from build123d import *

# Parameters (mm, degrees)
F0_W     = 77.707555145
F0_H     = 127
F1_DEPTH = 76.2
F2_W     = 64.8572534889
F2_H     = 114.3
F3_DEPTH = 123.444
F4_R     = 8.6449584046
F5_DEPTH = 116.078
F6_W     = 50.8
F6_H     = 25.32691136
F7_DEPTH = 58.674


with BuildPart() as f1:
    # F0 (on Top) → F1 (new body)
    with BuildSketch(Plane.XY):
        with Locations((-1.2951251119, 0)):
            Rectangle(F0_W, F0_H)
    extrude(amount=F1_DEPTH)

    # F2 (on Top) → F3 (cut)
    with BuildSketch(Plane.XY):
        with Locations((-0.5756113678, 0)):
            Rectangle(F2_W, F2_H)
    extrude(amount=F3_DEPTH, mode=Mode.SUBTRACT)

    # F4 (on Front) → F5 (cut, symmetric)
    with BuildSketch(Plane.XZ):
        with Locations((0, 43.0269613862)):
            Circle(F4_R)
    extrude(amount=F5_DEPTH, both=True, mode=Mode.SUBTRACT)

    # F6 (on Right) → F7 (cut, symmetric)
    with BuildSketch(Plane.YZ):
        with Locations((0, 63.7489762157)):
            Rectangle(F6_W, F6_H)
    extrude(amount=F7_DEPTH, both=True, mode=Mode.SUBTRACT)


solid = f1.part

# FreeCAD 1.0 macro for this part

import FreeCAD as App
import Part
import Sketcher

V = App.Vector
Q = App.Units.Quantity


def add_polygon(sketch, points):
    """Adds a closed chain of lines whose ends are joined by coincident constraints."""
    first, n = sketch.GeometryCount, len(points)
    for a, b in zip(points, points[1:] + points[:1]):
        sketch.addGeometry(Part.LineSegment(App.Vector(*a, 0), App.Vector(*b, 0)), False)
    for i in range(n):
        sketch.addConstraint(Sketcher.Constraint("Coincident", first + i, 2, first + (i + 1) % n, 1))

doc = App.newDocument("Part")
body = doc.addObject("PartDesign::Body", "Body")

# Sketch on XY plane
sketch1 = body.newObject("Sketcher::SketchObject", "Sketch")
sketch1.AttachmentSupport = (doc.getObject("XY_Plane"), [""])
sketch1.MapMode = "FlatFace"
add_polygon(sketch1, [(-40.148903, 63.5), (-40.148903, -63.5), (37.558652, -63.5), (37.558652, 63.5)])  # lines 0-3
sketch1.addConstraint(Sketcher.Constraint("Vertical", 0))
sketch1.addConstraint(Sketcher.Constraint("Horizontal", 1))
sketch1.addConstraint(Sketcher.Constraint("Vertical", 2))
sketch1.addConstraint(Sketcher.Constraint("Horizontal", 3))
sketch1.addConstraint(Sketcher.Constraint("DistanceY", 0, 2, 0, 1, Q("5 in")))
sketch1.addConstraint(Sketcher.Constraint("DistanceY", 0, 2, -1, 1, Q("2.5 in")))
sketch1.addConstraint(Sketcher.Constraint("DistanceX", 1, 1, 1, 2, Q("77.707555 mm")))
sketch1.addConstraint(Sketcher.Constraint("DistanceX", 0, 2, -1, 1, Q("40.148903 mm")))
pad1 = body.newObject("PartDesign::Pad", "Pad")
pad1.Profile = sketch1
pad1.Length = Q("3 in")

# Sketch on XY plane
sketch2 = body.newObject("Sketcher::SketchObject", "Sketch001")
sketch2.AttachmentSupport = (doc.getObject("XY_Plane"), [""])
sketch2.MapMode = "FlatFace"
add_polygon(sketch2, [(-33.004238, 57.15), (-33.004238, -57.15), (31.853015, -57.15), (31.853015, 57.15)])  # lines 0-3
sketch2.addConstraint(Sketcher.Constraint("Vertical", 0))
sketch2.addConstraint(Sketcher.Constraint("Horizontal", 1))
sketch2.addConstraint(Sketcher.Constraint("Vertical", 2))
sketch2.addConstraint(Sketcher.Constraint("Horizontal", 3))
sketch2.addConstraint(Sketcher.Constraint("DistanceY", 0, 2, 0, 1, Q("4.5 in")))
sketch2.addConstraint(Sketcher.Constraint("DistanceY", 0, 2, -1, 1, Q("2.25 in")))
sketch2.addConstraint(Sketcher.Constraint("DistanceX", 1, 1, 1, 2, Q("64.857253 mm")))
sketch2.addConstraint(Sketcher.Constraint("DistanceX", 0, 2, -1, 1, Q("33.004238 mm")))
pocket1 = body.newObject("PartDesign::Pocket", "Pocket")
pocket1.Profile = sketch2
pocket1.Length = Q("4.86 in")
pocket1.Reversed = True

# Sketch on XZ plane
sketch3 = body.newObject("Sketcher::SketchObject", "Sketch002")
sketch3.AttachmentSupport = (doc.getObject("XZ_Plane"), [""])
sketch3.MapMode = "FlatFace"
sketch3.addGeometry(Part.Circle(V(0, 43.026961, 0), V(0, 0, 1), 8.644958), False)
sketch3.addConstraint(Sketcher.Constraint("PointOnObject", 0, 3, -2))
sketch3.addConstraint(Sketcher.Constraint("Diameter", 0, Q("17.289917 mm")))
sketch3.addConstraint(Sketcher.Constraint("DistanceY", -1, 1, 0, 3, Q("43.026961 mm")))
pocket2 = body.newObject("PartDesign::Pocket", "Pocket001")
pocket2.Profile = sketch3
pocket2.Length = Q("9.14 in")
pocket2.Midplane = True

# Sketch on YZ plane
sketch4 = body.newObject("Sketcher::SketchObject", "Sketch003")
sketch4.AttachmentSupport = (doc.getObject("YZ_Plane"), [""])
sketch4.MapMode = "FlatFace"
add_polygon(sketch4, [(-25.4, 76.412432), (-25.4, 51.085521), (25.4, 51.085521), (25.4, 76.412432)])  # lines 0-3
sketch4.addConstraint(Sketcher.Constraint("Vertical", 0))
sketch4.addConstraint(Sketcher.Constraint("Horizontal", 1))
sketch4.addConstraint(Sketcher.Constraint("Vertical", 2))
sketch4.addConstraint(Sketcher.Constraint("Horizontal", 3))
sketch4.addConstraint(Sketcher.Constraint("DistanceX", 1, 1, 1, 2, Q("2 in")))
sketch4.addConstraint(Sketcher.Constraint("DistanceX", 0, 2, -1, 1, Q("1 in")))
sketch4.addConstraint(Sketcher.Constraint("DistanceY", 0, 2, 0, 1, Q("25.326911 mm")))
sketch4.addConstraint(Sketcher.Constraint("DistanceY", -1, 1, 0, 2, Q("51.085521 mm")))
pocket3 = body.newObject("PartDesign::Pocket", "Pocket002")
pocket3.Profile = sketch4
pocket3.Length = Q("4.62 in")
pocket3.Midplane = True

doc.recompute()
